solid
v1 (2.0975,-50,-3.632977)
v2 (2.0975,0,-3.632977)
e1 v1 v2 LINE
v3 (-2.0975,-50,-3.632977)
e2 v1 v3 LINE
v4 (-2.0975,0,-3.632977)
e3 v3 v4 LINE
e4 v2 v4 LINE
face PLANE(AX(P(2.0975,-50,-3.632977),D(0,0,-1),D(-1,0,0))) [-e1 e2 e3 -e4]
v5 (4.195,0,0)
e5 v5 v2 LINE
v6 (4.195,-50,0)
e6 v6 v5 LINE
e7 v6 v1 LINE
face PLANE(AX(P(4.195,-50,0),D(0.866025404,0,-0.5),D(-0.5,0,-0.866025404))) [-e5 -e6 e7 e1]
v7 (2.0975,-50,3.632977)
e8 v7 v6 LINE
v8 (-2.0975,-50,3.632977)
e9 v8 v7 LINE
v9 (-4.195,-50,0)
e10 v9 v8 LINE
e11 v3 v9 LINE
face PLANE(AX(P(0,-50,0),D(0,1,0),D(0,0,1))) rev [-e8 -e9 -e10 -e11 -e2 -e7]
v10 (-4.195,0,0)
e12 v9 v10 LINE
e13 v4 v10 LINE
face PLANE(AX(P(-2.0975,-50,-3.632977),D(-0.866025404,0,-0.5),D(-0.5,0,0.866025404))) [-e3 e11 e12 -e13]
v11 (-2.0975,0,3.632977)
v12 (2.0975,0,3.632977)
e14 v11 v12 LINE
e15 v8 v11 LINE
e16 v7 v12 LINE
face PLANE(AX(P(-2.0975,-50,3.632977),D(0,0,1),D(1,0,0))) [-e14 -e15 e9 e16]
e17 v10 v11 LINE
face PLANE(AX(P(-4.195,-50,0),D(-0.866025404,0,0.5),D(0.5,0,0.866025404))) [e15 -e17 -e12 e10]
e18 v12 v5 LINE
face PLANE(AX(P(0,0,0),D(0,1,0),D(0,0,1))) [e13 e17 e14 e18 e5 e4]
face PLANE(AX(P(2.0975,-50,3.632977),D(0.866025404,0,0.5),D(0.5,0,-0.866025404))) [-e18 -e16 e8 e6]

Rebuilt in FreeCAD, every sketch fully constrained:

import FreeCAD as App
import Part
import Sketcher
Q = App.Units.Quantity

doc = App.newDocument("Part")
body = doc.addObject("PartDesign::Body", "Body")

# Sketch on XZ plane
sketch1 = body.newObject("Sketcher::SketchObject", "Sketch")
sketch1.AttachmentSupport = (doc.getObject("XZ_Plane"), [""])
sketch1.MapMode = "FlatFace"
sketch1.addGeometry([
    Part.LineSegment(App.Vector(2.0975, -3.632977, 0), App.Vector(-2.0975, -3.632977, 0)),  # 0
    Part.LineSegment(App.Vector(-2.0975, -3.632977, 0), App.Vector(-4.195, 0, 0)),  # 1
    Part.LineSegment(App.Vector(-4.195, 0, 0), App.Vector(-2.0975, 3.632977, 0)),  # 2
    Part.LineSegment(App.Vector(-2.0975, 3.632977, 0), App.Vector(2.0975, 3.632977, 0)),  # 3
    Part.LineSegment(App.Vector(2.0975, 3.632977, 0), App.Vector(4.195, 0, 0)),  # 4
    Part.LineSegment(App.Vector(4.195, 0, 0), App.Vector(2.0975, -3.632977, 0)),  # 5
], False)
sketch1.addConstraint([
    Sketcher.Constraint("Coincident", 0, 2, 1, 1),
    Sketcher.Constraint("Coincident", 1, 2, 2, 1),
    Sketcher.Constraint("Coincident", 2, 2, 3, 1),
    Sketcher.Constraint("Coincident", 3, 2, 4, 1),
    Sketcher.Constraint("Coincident", 4, 2, 5, 1),
    Sketcher.Constraint("Coincident", 5, 2, 0, 1),
    Sketcher.Constraint("Horizontal", 0),
    Sketcher.Constraint("Horizontal", 3),
    Sketcher.Constraint("Symmetric", 0, 2, 3, 2, -1, 1),
    Sketcher.Constraint("Symmetric", 1, 2, 4, 2, -1, 1),
    Sketcher.Constraint("PointOnObject", 1, 2, -1),
    Sketcher.Constraint("Parallel", 2, 5),
    Sketcher.Constraint("Vertical", 0, 2, 2, 2),
    Sketcher.Constraint("Angle", 1, Q("120 deg")),
    Sketcher.Constraint("DistanceX", 0, 2, 0, 1, Q("4.195 mm")),
    Sketcher.Constraint("DistanceX", 1, 2, 4, 2, Q("8.39 mm")),
])
pad1 = body.newObject("PartDesign::Pad", "Pad")
pad1.Profile = sketch1
pad1.Length = 50

doc.recompute()
